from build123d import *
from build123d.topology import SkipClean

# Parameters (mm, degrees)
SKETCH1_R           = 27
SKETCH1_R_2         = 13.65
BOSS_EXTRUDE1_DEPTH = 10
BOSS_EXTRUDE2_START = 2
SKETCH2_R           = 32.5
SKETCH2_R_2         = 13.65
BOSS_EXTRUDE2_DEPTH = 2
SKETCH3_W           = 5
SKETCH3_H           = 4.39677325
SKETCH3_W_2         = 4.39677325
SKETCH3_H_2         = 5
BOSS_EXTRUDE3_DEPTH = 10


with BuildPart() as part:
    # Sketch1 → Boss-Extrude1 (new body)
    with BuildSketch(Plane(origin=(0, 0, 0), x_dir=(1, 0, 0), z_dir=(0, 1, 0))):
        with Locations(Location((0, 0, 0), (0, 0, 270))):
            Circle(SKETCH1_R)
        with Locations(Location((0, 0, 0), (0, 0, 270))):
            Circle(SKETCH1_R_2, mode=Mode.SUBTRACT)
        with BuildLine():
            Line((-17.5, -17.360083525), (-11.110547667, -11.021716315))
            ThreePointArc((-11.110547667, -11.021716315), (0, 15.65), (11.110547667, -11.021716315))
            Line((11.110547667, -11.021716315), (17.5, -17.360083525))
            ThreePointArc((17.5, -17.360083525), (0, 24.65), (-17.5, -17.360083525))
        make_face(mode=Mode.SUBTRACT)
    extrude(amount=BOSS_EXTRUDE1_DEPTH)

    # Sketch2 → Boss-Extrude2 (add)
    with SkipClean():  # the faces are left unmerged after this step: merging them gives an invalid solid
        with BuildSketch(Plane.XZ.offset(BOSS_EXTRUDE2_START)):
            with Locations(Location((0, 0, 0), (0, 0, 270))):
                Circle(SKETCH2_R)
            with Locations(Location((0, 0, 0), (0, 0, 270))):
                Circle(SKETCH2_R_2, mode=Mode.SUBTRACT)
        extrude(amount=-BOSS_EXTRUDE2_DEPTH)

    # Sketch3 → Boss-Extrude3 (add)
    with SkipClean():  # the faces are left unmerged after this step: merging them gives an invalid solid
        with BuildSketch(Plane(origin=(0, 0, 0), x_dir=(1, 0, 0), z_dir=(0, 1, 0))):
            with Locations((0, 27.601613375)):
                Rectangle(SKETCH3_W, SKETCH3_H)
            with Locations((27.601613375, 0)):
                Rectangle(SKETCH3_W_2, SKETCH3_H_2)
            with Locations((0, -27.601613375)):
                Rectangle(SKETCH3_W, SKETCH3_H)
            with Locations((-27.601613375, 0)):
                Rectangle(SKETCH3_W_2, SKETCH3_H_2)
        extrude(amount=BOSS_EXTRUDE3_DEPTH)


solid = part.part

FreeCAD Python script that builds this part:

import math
import FreeCAD as App
import Part
import Sketcher
from FreeCAD import Vector


def add_polygon(sketch, points):
    """Adds a closed chain of lines whose ends are joined by coincident constraints."""
    first, n = sketch.GeometryCount, len(points)
    for a, b in zip(points, points[1:] + points[:1]):
        sketch.addGeometry(Part.LineSegment(App.Vector(*a, 0), App.Vector(*b, 0)), False)
    for i in range(n):
        sketch.addConstraint(Sketcher.Constraint("Coincident", first + i, 2, first + (i + 1) % n, 1))

doc = App.newDocument("Part")
params = doc.addObject("Spreadsheet::Sheet", "Params")
for row, (alias, value) in enumerate([
    ("sketch1_diameter", "54 mm"),
    ("sketch1_diameter2", "27.3 mm"),
    ("sketch1_radius", "24.65 mm"),
    ("sketch1_radius2", "15.65 mm"),
    ("pad1_length", "10 mm"),
    ("sketch2_diameter", "65 mm"),
    ("sketch2_diameter2", "27.3 mm"),
    ("pad2_length", "2 mm"),
    ("sketch3_width", "5 mm"),
    ("pad3_length", "10 mm"),
], start=1):
    params.set(f"A{row}", alias)
    params.set(f"B{row}", "=" + value)
    params.setAlias(f"B{row}", alias)

body = doc.addObject("PartDesign::Body", "Body")

# Sketch on XZ plane
sketch1 = body.newObject("Sketcher::SketchObject", "Sketch")
sketch1.AttachmentSupport = (doc.getObject("XZ_Plane"), [""])
sketch1.MapMode = "FlatFace"
sketch1.addGeometry(Part.Circle(Vector(0, 0, 0), Vector(0, 0, 1), 27), False)
sketch1.addGeometry(Part.LineSegment(Vector(-11, 11, 0), Vector(-18, 17, 0)), False)
sketch1.addGeometry(Part.ArcOfCircle(Part.Circle(Vector(0, 0, 0), Vector(0, 0, 1), 25), math.radians(135), math.radians(405)), False)
sketch1.addGeometry(Part.LineSegment(Vector(18, 17, 0), Vector(11, 11, 0)), False)
sketch1.addGeometry(Part.ArcOfCircle(Part.Circle(Vector(0, 0, 0), Vector(0, 0, 1), 16), math.radians(135), math.radians(405)), False)
sketch1.addGeometry(Part.Circle(Vector(0, 0, 0), Vector(0, 0, 1), 14), False)
sketch1.addConstraint(Sketcher.Constraint("Coincident", 1, 2, 2, 1))
sketch1.addConstraint(Sketcher.Constraint("Coincident", 2, 2, 3, 1))
sketch1.addConstraint(Sketcher.Constraint("Coincident", 3, 2, 4, 2))
sketch1.addConstraint(Sketcher.Constraint("Coincident", 4, 1, 1, 1))
sketch1.addConstraint(Sketcher.Constraint("Coincident", 0, 3, -1, 1))
sketch1.addConstraint(Sketcher.Constraint("Coincident", 2, 3, -1, 1))
sketch1.addConstraint(Sketcher.Constraint("Coincident", 4, 3, -1, 1))
sketch1.addConstraint(Sketcher.Constraint("Coincident", 5, 3, -1, 1))
sketch1.addConstraint(Sketcher.Constraint("Horizontal", 1, 2, 2, 2))
sketch1.addConstraint(Sketcher.Constraint("Horizontal", 3, 2, 4, 1))
sketch1.addConstraint(Sketcher.Constraint("Diameter", 0, 54.0))
sketch1.addConstraint(Sketcher.Constraint("Diameter", 5, 27.3))
sketch1.addConstraint(Sketcher.Constraint("Radius", 2, 24.65))
sketch1.addConstraint(Sketcher.Constraint("Radius", 4, 15.65))
sketch1.addConstraint(Sketcher.Constraint("DistanceX", 1, 2, 2, 2, 35.0))
sketch1.addConstraint(Sketcher.Constraint("DistanceX", -1, 1, 3, 2, 11.110548))
sketch1.setExpression("Constraints[10]", "Params.sketch1_diameter")
sketch1.setExpression("Constraints[11]", "Params.sketch1_diameter2")
sketch1.setExpression("Constraints[12]", "Params.sketch1_radius")
sketch1.setExpression("Constraints[13]", "Params.sketch1_radius2")
pad1 = body.newObject("PartDesign::Pad", "Pad")
pad1.Profile = sketch1
pad1.setExpression("Length", "Params.pad1_length")
pad1.Reversed = True

# Sketch on XZ plane
sketch2 = body.newObject("Sketcher::SketchObject", "Sketch001")
sketch2.AttachmentSupport = (doc.getObject("XZ_Plane"), [""])
sketch2.MapMode = "FlatFace"
sketch2.AttachmentOffset = App.Placement(Vector(0, 0, 2), App.Rotation())
sketch2.addGeometry(Part.Circle(Vector(0, 0, 0), Vector(0, 0, 1), 32), False)
sketch2.addGeometry(Part.Circle(Vector(0, 0, 0), Vector(0, 0, 1), 14), False)
sketch2.addConstraint(Sketcher.Constraint("Coincident", 0, 3, -1, 1))
sketch2.addConstraint(Sketcher.Constraint("Coincident", 1, 3, -1, 1))
sketch2.addConstraint(Sketcher.Constraint("Diameter", 0, 65.0))
sketch2.addConstraint(Sketcher.Constraint("Diameter", 1, 27.3))
sketch2.setExpression("Constraints[2]", "Params.sketch2_diameter")
sketch2.setExpression("Constraints[3]", "Params.sketch2_diameter2")
pad2 = body.newObject("PartDesign::Pad", "Pad001")
pad2.Profile = sketch2
pad2.setExpression("Length", "Params.pad2_length")
pad2.Reversed = True

# Sketch on XZ plane
sketch3 = body.newObject("Sketcher::SketchObject", "Sketch002")
sketch3.AttachmentSupport = (doc.getObject("XZ_Plane"), [""])
sketch3.MapMode = "FlatFace"
add_polygon(sketch3, [(-2.5, -29.8), (-2.5, -25.4), (2.5, -25.4), (2.5, -29.8)])  # lines 0-3
add_polygon(sketch3, [(25.4, -2.5), (25.4, 2.5), (29.8, 2.5), (29.8, -2.5)])  # lines 4-7
add_polygon(sketch3, [(-2.5, 25.4), (-2.5, 29.8), (2.5, 29.8), (2.5, 25.4)])  # lines 8-11
add_polygon(sketch3, [(-29.8, -2.5), (-29.8, 2.5), (-25.4, 2.5), (-25.4, -2.5)])  # lines 12-15
sketch3.addConstraint(Sketcher.Constraint("Vertical", 0))
sketch3.addConstraint(Sketcher.Constraint("Horizontal", 1))
sketch3.addConstraint(Sketcher.Constraint("Vertical", 2))
sketch3.addConstraint(Sketcher.Constraint("Horizontal", 3))
sketch3.addConstraint(Sketcher.Constraint("Vertical", 4))
sketch3.addConstraint(Sketcher.Constraint("Horizontal", 5))
sketch3.addConstraint(Sketcher.Constraint("Vertical", 6))
sketch3.addConstraint(Sketcher.Constraint("Horizontal", 7))
sketch3.addConstraint(Sketcher.Constraint("Vertical", 8))
sketch3.addConstraint(Sketcher.Constraint("Horizontal", 9))
sketch3.addConstraint(Sketcher.Constraint("Vertical", 10))
sketch3.addConstraint(Sketcher.Constraint("Horizontal", 11))
sketch3.addConstraint(Sketcher.Constraint("Vertical", 12))
sketch3.addConstraint(Sketcher.Constraint("Horizontal", 13))
sketch3.addConstraint(Sketcher.Constraint("Vertical", 14))
sketch3.addConstraint(Sketcher.Constraint("Horizontal", 15))
sketch3.addConstraint(Sketcher.Constraint("Symmetric", 2, 2, 8, 2, -1, 1))
sketch3.addConstraint(Sketcher.Constraint("Symmetric", 0, 2, 10, 2, -1, 1))
sketch3.addConstraint(Sketcher.Constraint("Symmetric", 6, 2, 12, 2, -1, 1))
sketch3.addConstraint(Sketcher.Constraint("Symmetric", 4, 2, 14, 2, -1, 1))
sketch3.addConstraint(Sketcher.Constraint("Horizontal", 5, 2, 12, 2))
sketch3.addConstraint(Sketcher.Constraint("Vertical", 3, 2, 8, 2))
sketch3.addConstraint(Sketcher.Constraint("Equal", 15, 0))
sketch3.addConstraint(Sketcher.Constraint("Equal", 11, 4))
sketch3.addConstraint(Sketcher.Constraint("DistanceX", 1, 1, 1, 2, 5.0))
sketch3.addConstraint(Sketcher.Constraint("DistanceY", 2, 2, -1, 1, 29.8))
sketch3.addConstraint(Sketcher.Constraint("DistanceX", -1, 1, 5, 2, 29.8))
sketch3.addConstraint(Sketcher.Constraint("DistanceX", 5, 1, 5, 2, 4.396773))
sketch3.setExpression("Constraints[40]", "Params.sketch3_width")
pad3 = body.newObject("PartDesign::Pad", "Pad002")
pad3.Profile = sketch3
pad3.setExpression("Length", "Params.pad3_length")
pad3.Reversed = True

doc.recompute()
